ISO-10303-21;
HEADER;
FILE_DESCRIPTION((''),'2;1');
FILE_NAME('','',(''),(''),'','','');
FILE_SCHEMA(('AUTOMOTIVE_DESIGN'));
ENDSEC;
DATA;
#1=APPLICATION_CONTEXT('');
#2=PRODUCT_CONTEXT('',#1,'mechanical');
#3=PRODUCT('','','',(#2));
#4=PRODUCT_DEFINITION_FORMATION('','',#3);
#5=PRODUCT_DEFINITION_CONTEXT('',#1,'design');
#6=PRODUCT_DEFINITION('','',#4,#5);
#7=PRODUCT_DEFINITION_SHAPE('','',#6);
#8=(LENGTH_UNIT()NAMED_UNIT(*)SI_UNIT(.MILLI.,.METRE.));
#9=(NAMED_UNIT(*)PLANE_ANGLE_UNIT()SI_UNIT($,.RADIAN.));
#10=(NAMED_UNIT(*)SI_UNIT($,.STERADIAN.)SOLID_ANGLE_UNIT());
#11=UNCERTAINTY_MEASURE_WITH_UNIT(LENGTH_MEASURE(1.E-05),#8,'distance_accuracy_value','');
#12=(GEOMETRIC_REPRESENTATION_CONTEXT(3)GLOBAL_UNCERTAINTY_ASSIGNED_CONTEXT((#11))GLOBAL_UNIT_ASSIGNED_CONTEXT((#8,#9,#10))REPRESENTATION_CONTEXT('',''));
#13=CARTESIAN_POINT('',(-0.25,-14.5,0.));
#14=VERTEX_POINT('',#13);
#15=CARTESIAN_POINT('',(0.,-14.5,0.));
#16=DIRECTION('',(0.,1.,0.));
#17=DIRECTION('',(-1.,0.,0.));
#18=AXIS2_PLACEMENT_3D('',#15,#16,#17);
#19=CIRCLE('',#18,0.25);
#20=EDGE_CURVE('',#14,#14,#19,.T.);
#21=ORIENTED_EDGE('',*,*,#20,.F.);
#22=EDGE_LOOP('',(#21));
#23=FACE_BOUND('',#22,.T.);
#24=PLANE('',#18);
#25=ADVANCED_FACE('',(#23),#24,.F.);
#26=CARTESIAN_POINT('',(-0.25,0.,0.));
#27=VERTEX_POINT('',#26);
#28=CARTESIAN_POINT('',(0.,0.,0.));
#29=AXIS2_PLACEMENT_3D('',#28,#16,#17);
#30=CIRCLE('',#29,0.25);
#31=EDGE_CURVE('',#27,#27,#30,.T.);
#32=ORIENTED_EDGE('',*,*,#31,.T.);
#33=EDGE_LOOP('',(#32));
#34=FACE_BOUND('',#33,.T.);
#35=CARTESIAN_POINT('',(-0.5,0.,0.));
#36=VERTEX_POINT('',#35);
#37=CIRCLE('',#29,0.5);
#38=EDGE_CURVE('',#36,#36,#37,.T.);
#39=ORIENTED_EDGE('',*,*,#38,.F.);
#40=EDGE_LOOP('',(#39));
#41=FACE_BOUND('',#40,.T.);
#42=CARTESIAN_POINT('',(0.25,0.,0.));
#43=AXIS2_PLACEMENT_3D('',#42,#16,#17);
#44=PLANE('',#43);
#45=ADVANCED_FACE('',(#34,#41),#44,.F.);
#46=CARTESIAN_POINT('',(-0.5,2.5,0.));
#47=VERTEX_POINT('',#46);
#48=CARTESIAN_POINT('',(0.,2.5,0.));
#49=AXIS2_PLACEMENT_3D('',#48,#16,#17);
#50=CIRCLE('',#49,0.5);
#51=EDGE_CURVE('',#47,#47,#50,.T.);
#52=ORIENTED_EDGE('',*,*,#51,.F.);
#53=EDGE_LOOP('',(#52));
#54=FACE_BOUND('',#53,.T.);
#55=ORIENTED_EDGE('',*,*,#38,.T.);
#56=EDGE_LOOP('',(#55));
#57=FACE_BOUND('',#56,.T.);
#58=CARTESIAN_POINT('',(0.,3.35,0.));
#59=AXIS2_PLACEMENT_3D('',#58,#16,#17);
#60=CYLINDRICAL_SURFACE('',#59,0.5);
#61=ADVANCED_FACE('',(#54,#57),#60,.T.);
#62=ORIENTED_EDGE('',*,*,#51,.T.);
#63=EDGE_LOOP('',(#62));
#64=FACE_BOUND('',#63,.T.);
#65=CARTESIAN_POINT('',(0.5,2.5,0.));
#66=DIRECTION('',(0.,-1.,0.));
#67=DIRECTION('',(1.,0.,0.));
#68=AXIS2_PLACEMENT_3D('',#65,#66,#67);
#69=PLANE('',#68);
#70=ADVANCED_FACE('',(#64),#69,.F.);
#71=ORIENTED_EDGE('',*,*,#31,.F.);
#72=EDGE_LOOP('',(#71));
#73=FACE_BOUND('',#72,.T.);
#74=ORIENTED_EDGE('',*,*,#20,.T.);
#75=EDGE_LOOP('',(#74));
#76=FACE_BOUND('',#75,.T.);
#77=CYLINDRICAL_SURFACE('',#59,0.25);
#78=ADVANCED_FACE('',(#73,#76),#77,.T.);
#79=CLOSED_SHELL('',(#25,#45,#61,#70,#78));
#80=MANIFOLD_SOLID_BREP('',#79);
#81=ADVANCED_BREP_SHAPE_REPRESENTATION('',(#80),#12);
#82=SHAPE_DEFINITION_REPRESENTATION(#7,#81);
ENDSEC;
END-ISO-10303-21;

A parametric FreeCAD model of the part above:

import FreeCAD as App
import Part
import Sketcher

V = App.Vector

doc = App.newDocument("Part")
params = doc.addObject("Spreadsheet::Sheet", "Params")
for row, (alias, value) in enumerate([
    ("sketch1_height", "17 mm"),
    ("sketch1_width", "0.5 mm"),
    ("sketch1_height2", "14.5 mm"),
    ("revolution_angle", "360 deg"),
], start=1):
    params.set(f"A{row}", alias)
    params.set(f"B{row}", "=" + value)
    params.setAlias(f"B{row}", alias)

body = doc.addObject("PartDesign::Body", "Body")

sketch1 = doc.addObject("Sketcher::SketchObject", "Sketch")
body.addObject(sketch1)
sketch1.AttachmentSupport = (doc.XY_Plane, [""])
sketch1.MapMode = "FlatFace"
sketch1.addGeometry([
    Part.LineSegment(V(0.25, -14.5, 0), V(0.25, 0, 0)),
    Part.LineSegment(V(0.25, 0, 0), V(0.5, 0, 0)),
    Part.LineSegment(V(0.5, 0, 0), V(0.5, 2.5, 0)),
    Part.LineSegment(V(0.5, 2.5, 0), V(0, 2.5, 0)),
    Part.LineSegment(V(0, 2.5, 0), V(0, -14.5, 0)),
    Part.LineSegment(V(0, -14.5, 0), V(0.25, -14.5, 0)),
], False)
sketch1.addConstraint([
    Sketcher.Constraint("Coincident", 0, 2, 1, 1),
    Sketcher.Constraint("Coincident", 1, 2, 2, 1),
    Sketcher.Constraint("Coincident", 2, 2, 3, 1),
    Sketcher.Constraint("Coincident", 3, 2, 4, 1),
    Sketcher.Constraint("Coincident", 4, 2, 5, 1),
    Sketcher.Constraint("Coincident", 5, 2, 0, 1),
    Sketcher.Constraint("Vertical", 0),
    Sketcher.Constraint("Horizontal", 1),
    Sketcher.Constraint("Vertical", 2),
    Sketcher.Constraint("Horizontal", 3),
    Sketcher.Constraint("Vertical", 4),
    Sketcher.Constraint("Horizontal", 5),
    Sketcher.Constraint("PointOnObject", 0, 2, -1),
    Sketcher.Constraint("PointOnObject", 3, 2, -2),
    Sketcher.Constraint("Equal", 1, 5),
    Sketcher.Constraint("DistanceY", 4, 2, 4, 1, 17.0),
    Sketcher.Constraint("DistanceX", 3, 2, 3, 1, 0.5),
    Sketcher.Constraint("DistanceY", 0, 1, 0, 2, 14.5),
])
sketch1.setExpression("Constraints[15]", "Params.sketch1_height")
sketch1.setExpression("Constraints[16]", "Params.sketch1_width")
sketch1.setExpression("Constraints[17]", "Params.sketch1_height2")
revolution = doc.addObject("PartDesign::Revolution", "Revolution")
body.addObject(revolution)
revolution.Profile = sketch1
revolution.ReferenceAxis = (sketch1, ["V_Axis"])
revolution.setExpression("Angle", "Params.revolution_angle")

doc.recompute()
